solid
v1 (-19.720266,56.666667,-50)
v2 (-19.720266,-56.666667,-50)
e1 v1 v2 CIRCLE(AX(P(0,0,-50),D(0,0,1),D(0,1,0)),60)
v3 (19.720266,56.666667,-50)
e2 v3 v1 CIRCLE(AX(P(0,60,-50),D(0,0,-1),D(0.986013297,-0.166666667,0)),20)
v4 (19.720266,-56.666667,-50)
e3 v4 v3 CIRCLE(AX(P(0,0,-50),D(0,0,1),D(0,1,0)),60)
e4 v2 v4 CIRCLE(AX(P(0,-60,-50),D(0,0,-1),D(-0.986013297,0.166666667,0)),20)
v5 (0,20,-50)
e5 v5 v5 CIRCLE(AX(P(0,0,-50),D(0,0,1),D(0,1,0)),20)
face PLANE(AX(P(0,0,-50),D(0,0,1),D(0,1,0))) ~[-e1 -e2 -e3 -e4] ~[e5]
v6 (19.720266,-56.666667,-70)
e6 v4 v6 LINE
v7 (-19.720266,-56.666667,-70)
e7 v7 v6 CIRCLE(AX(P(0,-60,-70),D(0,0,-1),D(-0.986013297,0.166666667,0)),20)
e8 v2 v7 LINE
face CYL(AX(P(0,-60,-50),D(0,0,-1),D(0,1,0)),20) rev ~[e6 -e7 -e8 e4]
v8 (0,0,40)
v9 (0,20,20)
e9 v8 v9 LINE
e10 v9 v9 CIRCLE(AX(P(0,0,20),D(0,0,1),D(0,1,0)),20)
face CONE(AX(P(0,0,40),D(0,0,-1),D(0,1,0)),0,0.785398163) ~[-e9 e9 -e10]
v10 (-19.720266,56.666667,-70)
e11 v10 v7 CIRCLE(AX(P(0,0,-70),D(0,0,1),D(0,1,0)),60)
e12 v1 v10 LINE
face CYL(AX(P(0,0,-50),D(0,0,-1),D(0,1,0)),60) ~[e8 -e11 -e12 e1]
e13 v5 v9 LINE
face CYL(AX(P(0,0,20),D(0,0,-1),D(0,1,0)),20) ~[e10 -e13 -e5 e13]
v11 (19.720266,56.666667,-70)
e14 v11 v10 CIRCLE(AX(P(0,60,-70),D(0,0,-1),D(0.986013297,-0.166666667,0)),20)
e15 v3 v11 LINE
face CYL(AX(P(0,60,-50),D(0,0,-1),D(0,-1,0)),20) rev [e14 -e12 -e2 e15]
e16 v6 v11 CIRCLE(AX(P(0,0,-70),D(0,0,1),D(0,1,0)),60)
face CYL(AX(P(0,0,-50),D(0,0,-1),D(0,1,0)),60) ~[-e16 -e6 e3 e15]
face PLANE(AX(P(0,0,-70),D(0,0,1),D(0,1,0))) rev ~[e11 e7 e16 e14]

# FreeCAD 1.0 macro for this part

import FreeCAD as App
import Part
import Sketcher

V = App.Vector
Q = App.Units.Quantity

doc = App.newDocument("Part")
params = doc.addObject("Spreadsheet::Sheet", "Params")
for row, (alias, value) in enumerate([
    ("sketch1_width", "60 mm"),
    ("sketch1_width2", "40 mm"),
    ("sketch1_height", "110 mm"),
    ("sketch1_height2", "20 mm"),
    ("sketch1_height3", "70 mm"),
    ("revolution_angle", "360 deg"),
    ("sketch2_width", "20 mm"),
    ("groove_angle", "360 deg"),
], start=1):
    params.set(f"A{row}", alias)
    params.set(f"B{row}", "=" + value)
    params.setAlias(f"B{row}", alias)

body = doc.addObject("PartDesign::Body", "Body")

sketch1 = body.newObject("Sketcher::SketchObject", "Sketch")
sketch1.AttachmentSupport = (doc.getObject("YZ_Plane"), [""])
sketch1.MapMode = "FlatFace"
sketch1.addGeometry(Part.LineSegment(V(0, 40, 0), V(0, -70, 0)), False)
sketch1.addGeometry(Part.LineSegment(V(0, -70, 0), V(60, -70, 0)), False)
sketch1.addGeometry(Part.LineSegment(V(60, -70, 0), V(60, -50, 0)), False)
sketch1.addGeometry(Part.LineSegment(V(60, -50, 0), V(20, -50, 0)), False)
sketch1.addGeometry(Part.LineSegment(V(20, -50, 0), V(20, 20, 0)), False)
sketch1.addGeometry(Part.LineSegment(V(20, 20, 0), V(0, 40, 0)), False)
sketch1.addConstraint(Sketcher.Constraint("Coincident", 0, 2, 1, 1))
sketch1.addConstraint(Sketcher.Constraint("Coincident", 1, 2, 2, 1))
sketch1.addConstraint(Sketcher.Constraint("Coincident", 2, 2, 3, 1))
sketch1.addConstraint(Sketcher.Constraint("Coincident", 3, 2, 4, 1))
sketch1.addConstraint(Sketcher.Constraint("Coincident", 4, 2, 5, 1))
sketch1.addConstraint(Sketcher.Constraint("Coincident", 5, 2, 0, 1))
sketch1.addConstraint(Sketcher.Constraint("Vertical", 0))
sketch1.addConstraint(Sketcher.Constraint("Horizontal", 1))
sketch1.addConstraint(Sketcher.Constraint("Vertical", 2))
sketch1.addConstraint(Sketcher.Constraint("Horizontal", 3))
sketch1.addConstraint(Sketcher.Constraint("Vertical", 4))
sketch1.addConstraint(Sketcher.Constraint("PointOnObject", 0, 2, -2))
sketch1.addConstraint(Sketcher.Constraint("DistanceX", 1, 1, 1, 2, Q("60 mm")))
sketch1.addConstraint(Sketcher.Constraint("DistanceX", 3, 2, 3, 1, Q("40 mm")))
sketch1.addConstraint(Sketcher.Constraint("DistanceY", 0, 2, 0, 1, Q("110 mm")))
sketch1.addConstraint(Sketcher.Constraint("DistanceY", 2, 1, 2, 2, Q("20 mm")))
sketch1.addConstraint(Sketcher.Constraint("DistanceY", 4, 1, 4, 2, Q("70 mm")))
sketch1.addConstraint(Sketcher.Constraint("DistanceY", 0, 2, -1, 1, Q("70 mm")))
sketch1.setExpression("Constraints[12]", "Params.sketch1_width")
sketch1.setExpression("Constraints[13]", "Params.sketch1_width2")
sketch1.setExpression("Constraints[14]", "Params.sketch1_height")
sketch1.setExpression("Constraints[15]", "Params.sketch1_height2")
sketch1.setExpression("Constraints[16]", "Params.sketch1_height3")
revolution = body.newObject("PartDesign::Revolution", "Revolution")
revolution.Profile = sketch1
revolution.ReferenceAxis = (sketch1, ["V_Axis"])
revolution.setExpression("Angle", "Params.revolution_angle")

sketch2 = body.newObject("Sketcher::SketchObject", "Sketch001")
sketch2.AttachmentSupport = (doc.getObject("YZ_Plane"), [""])
sketch2.MapMode = "FlatFace"
sketch2.addGeometry(Part.LineSegment(V(60, -70, 0), V(60, -50, 0)), False)
sketch2.addGeometry(Part.LineSegment(V(60, -50, 0), V(40, -50, 0)), False)
sketch2.addGeometry(Part.LineSegment(V(40, -50, 0), V(40, -70, 0)), False)
sketch2.addGeometry(Part.LineSegment(V(40, -70, 0), V(60, -70, 0)), False)
sketch2.addGeometry(Part.LineSegment(V(60, -70, 0), V(60, -50, 0)), True)
sketch2.addConstraint(Sketcher.Constraint("Coincident", 0, 2, 1, 1))
sketch2.addConstraint(Sketcher.Constraint("Coincident", 1, 2, 2, 1))
sketch2.addConstraint(Sketcher.Constraint("Coincident", 2, 2, 3, 1))
sketch2.addConstraint(Sketcher.Constraint("Coincident", 3, 2, 0, 1))
sketch2.addConstraint(Sketcher.Constraint("Vertical", 0))
sketch2.addConstraint(Sketcher.Constraint("Horizontal", 1))
sketch2.addConstraint(Sketcher.Constraint("Vertical", 2))
sketch2.addConstraint(Sketcher.Constraint("Horizontal", 3))
sketch2.addConstraint(Sketcher.Constraint("Vertical", 4))
sketch2.addConstraint(Sketcher.Constraint("Coincident", 4, 1, 3, 2))
sketch2.addConstraint(Sketcher.Constraint("Horizontal", 1, 2, 4, 2))
sketch2.addConstraint(Sketcher.Constraint("Equal", 3, 0))
sketch2.addConstraint(Sketcher.Constraint("DistanceX", 1, 2, 1, 1, Q("20 mm")))
sketch2.addConstraint(Sketcher.Constraint("DistanceX", -1, 1, 0, 2, Q("60 mm")))
sketch2.addConstraint(Sketcher.Constraint("DistanceY", 0, 2, -1, 1, Q("50 mm")))
sketch2.setExpression("Constraints[12]", "Params.sketch2_width")
groove = body.newObject("PartDesign::Groove", "Groove")
groove.Profile = sketch2
groove.ReferenceAxis = (sketch2, ["Axis0"])
groove.setExpression("Angle", "Params.groove_angle")
doc.recompute()

mirrored = body.newObject("PartDesign::Mirrored", "Mirrored")
mirrored.Originals = [groove]
mirrored.MirrorPlane = (doc.getObject("XZ_Plane"), [""])
body.Tip = mirrored

doc.recompute()
